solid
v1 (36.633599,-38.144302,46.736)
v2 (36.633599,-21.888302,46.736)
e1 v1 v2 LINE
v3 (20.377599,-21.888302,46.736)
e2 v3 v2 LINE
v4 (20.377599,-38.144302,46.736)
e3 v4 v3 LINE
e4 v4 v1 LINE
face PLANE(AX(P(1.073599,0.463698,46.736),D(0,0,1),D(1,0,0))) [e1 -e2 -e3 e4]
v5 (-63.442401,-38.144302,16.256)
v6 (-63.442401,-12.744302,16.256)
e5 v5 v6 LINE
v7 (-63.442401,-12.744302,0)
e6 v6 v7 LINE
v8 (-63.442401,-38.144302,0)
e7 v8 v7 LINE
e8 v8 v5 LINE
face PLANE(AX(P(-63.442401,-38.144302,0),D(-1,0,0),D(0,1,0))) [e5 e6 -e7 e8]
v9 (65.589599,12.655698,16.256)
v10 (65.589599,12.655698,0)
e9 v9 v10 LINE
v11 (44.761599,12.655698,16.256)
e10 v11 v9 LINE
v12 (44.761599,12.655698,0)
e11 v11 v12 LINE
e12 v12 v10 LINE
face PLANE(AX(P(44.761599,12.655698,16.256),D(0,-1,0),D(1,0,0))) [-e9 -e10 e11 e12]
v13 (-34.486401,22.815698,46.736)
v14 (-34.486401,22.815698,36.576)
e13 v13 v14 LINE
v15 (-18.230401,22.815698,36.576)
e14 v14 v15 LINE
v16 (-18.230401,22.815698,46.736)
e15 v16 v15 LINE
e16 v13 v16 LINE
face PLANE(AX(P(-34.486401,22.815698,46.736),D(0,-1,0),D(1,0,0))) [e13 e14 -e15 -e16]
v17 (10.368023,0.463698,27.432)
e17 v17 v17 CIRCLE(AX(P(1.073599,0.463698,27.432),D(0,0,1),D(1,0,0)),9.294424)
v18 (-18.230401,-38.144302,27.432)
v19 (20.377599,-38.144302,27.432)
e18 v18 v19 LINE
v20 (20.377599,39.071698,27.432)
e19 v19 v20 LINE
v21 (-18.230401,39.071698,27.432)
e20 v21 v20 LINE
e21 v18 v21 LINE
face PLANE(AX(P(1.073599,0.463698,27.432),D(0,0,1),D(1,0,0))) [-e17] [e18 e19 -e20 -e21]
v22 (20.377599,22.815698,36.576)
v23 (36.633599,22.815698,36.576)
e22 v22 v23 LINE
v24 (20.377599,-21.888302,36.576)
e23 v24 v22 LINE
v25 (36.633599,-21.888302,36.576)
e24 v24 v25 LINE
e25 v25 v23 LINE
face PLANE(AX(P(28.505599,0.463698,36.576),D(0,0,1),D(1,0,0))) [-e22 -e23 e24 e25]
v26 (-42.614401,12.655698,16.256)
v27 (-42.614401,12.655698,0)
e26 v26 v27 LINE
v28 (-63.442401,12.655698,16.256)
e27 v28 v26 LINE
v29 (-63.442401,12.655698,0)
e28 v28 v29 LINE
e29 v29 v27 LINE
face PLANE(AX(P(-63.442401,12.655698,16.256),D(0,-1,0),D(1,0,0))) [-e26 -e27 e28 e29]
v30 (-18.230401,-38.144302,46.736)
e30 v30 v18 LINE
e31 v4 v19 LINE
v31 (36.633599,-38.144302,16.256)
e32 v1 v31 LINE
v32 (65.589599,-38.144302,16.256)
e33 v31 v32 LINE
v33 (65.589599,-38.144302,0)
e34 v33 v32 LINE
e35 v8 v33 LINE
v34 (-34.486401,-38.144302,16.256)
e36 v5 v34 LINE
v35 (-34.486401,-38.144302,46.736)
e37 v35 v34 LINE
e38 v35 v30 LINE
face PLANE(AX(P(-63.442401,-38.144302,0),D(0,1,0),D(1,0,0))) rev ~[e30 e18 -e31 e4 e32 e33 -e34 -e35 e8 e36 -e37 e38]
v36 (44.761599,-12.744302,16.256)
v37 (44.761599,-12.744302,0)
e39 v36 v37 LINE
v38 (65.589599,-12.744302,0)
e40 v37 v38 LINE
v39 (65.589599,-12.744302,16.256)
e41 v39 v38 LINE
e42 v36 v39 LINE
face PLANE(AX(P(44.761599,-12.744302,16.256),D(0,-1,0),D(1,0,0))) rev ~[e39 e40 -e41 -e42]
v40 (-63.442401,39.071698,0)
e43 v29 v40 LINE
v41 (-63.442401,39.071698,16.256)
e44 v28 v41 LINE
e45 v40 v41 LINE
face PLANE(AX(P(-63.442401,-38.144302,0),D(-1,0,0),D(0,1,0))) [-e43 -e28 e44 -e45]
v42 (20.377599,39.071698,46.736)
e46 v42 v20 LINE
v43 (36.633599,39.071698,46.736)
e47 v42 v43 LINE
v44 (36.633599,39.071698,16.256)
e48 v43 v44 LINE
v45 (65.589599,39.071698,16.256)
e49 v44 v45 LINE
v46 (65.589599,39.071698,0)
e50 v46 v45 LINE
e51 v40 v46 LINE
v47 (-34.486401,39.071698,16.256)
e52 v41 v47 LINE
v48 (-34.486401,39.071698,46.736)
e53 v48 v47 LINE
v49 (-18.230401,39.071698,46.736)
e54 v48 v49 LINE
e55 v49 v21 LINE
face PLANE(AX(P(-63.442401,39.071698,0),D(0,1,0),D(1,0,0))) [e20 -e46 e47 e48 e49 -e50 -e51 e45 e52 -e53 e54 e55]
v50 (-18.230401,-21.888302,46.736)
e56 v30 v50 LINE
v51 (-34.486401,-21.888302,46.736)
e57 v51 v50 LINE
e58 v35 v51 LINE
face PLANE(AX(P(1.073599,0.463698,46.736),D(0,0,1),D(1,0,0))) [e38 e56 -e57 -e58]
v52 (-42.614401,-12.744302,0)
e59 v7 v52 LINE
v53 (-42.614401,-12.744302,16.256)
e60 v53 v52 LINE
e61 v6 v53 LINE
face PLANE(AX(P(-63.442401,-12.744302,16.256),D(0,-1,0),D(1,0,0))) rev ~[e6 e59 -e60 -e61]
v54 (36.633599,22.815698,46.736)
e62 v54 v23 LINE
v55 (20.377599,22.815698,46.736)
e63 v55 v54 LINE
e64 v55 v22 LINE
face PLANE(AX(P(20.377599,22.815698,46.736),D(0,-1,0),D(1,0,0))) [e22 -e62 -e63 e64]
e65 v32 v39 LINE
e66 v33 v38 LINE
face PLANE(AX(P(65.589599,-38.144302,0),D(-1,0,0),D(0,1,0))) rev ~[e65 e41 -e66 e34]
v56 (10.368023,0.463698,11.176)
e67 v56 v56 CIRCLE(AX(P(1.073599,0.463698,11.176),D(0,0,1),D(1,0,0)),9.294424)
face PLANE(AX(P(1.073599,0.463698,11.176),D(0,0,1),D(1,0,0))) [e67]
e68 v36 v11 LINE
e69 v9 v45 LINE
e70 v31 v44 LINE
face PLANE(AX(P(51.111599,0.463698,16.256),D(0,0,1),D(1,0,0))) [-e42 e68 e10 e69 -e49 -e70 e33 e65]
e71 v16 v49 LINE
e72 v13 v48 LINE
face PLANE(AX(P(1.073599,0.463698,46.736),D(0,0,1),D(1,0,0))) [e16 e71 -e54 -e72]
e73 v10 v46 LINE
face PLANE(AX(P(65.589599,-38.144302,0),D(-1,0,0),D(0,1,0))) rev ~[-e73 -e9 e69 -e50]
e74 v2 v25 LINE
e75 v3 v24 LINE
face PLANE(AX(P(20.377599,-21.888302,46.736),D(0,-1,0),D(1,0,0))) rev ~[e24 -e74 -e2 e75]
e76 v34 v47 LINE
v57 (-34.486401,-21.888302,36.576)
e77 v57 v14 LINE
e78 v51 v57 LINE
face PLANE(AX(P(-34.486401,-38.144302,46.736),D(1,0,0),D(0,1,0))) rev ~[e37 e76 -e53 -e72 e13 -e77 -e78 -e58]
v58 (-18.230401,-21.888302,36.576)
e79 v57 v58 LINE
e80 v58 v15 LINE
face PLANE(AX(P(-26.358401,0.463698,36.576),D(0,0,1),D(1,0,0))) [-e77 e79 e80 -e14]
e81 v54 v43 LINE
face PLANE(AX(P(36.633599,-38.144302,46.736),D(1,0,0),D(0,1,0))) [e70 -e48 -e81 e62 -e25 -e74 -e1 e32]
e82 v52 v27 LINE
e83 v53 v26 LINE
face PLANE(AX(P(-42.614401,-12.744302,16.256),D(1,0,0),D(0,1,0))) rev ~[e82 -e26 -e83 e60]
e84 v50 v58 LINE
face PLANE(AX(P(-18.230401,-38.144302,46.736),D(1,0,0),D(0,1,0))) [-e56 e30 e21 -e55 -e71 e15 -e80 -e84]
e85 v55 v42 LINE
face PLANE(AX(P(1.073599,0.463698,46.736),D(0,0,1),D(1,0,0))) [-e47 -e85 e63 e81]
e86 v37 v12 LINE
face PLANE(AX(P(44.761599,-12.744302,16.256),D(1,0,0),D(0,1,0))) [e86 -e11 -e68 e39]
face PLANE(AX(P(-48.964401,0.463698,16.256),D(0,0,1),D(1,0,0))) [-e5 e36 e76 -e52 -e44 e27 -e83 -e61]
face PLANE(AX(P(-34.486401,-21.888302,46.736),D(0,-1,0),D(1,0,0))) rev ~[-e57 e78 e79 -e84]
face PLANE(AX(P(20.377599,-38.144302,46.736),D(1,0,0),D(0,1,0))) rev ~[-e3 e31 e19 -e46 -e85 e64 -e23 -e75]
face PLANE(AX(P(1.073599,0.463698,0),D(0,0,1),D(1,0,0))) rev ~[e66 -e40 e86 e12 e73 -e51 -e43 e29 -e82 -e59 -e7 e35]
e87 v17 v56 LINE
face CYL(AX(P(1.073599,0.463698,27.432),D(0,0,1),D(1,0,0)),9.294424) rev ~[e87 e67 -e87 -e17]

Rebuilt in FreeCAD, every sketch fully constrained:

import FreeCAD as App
import Part
import Sketcher
Q = App.Units.Quantity


def add_polygon(sketch, points):
    """Adds a closed chain of lines whose ends are joined by coincident constraints."""
    first, n = sketch.GeometryCount, len(points)
    for a, b in zip(points, points[1:] + points[:1]):
        sketch.addGeometry(Part.LineSegment(App.Vector(*a, 0), App.Vector(*b, 0)), False)
    for i in range(n):
        sketch.addConstraint(Sketcher.Constraint("Coincident", first + i, 2, first + (i + 1) % n, 1))

doc = App.newDocument("Part")
body = doc.addObject("PartDesign::Body", "Body")

# Sketch on XY plane
sketch1 = body.newObject("Sketcher::SketchObject", "Sketch")
sketch1.AttachmentSupport = (doc.getObject("XY_Plane"), [""])
sketch1.MapMode = "FlatFace"
add_polygon(sketch1, [(-63, 39), (-63, -38), (66, -38), (66, 39)])  # lines 0-3
sketch1.addConstraint([
    Sketcher.Constraint("Vertical", 0),
    Sketcher.Constraint("Horizontal", 1),
    Sketcher.Constraint("Vertical", 2),
    Sketcher.Constraint("Horizontal", 3),
    Sketcher.Constraint("DistanceX", 1, 1, 1, 2, Q("5.08 in")),
    Sketcher.Constraint("DistanceY", 0, 2, 0, 1, Q("3.04 in")),
    Sketcher.Constraint("DistanceX", 0, 2, -1, 1, 63.442401),
    Sketcher.Constraint("DistanceY", 0, 2, -1, 1, 38.144302),
])
pad1 = body.newObject("PartDesign::Pad", "Pad")
pad1.Profile = sketch1
pad1.Length = Q("1.84 in")

# Sketch on XY plane
sketch2 = body.newObject("Sketcher::SketchObject", "Sketch001")
sketch2.AttachmentSupport = (doc.getObject("XY_Plane"), [""])
sketch2.MapMode = "FlatFace"
sketch2.AttachmentOffset = App.Placement(App.Vector(0, 0, 1.84 * 25.4), App.Rotation())
add_polygon(sketch2, [(-63, 39), (-63, -38), (-34, -38), (-34, 39)])  # lines 0-3
sketch2.addConstraint([
    Sketcher.Constraint("Vertical", 0),
    Sketcher.Constraint("Horizontal", 1),
    Sketcher.Constraint("Vertical", 2),
    Sketcher.Constraint("Horizontal", 3),
    Sketcher.Constraint("DistanceX", 1, 1, 1, 2, Q("1.14 in")),
    Sketcher.Constraint("DistanceY", 0, 2, 0, 1, Q("3.04 in")),
    Sketcher.Constraint("DistanceX", 0, 2, -1, 1, 63.442401),
    Sketcher.Constraint("DistanceY", 0, 2, -1, 1, 38.144302),
])
pocket1 = body.newObject("PartDesign::Pocket", "Pocket")
pocket1.Profile = sketch2
pocket1.Length = Q("1.2 in")

# Sketch on XY plane
sketch3 = body.newObject("Sketcher::SketchObject", "Sketch002")
sketch3.AttachmentSupport = (doc.getObject("XY_Plane"), [""])
sketch3.MapMode = "FlatFace"
sketch3.AttachmentOffset = App.Placement(App.Vector(0, 0, 1.84 * 25.4), App.Rotation())
add_polygon(sketch3, [(37, 39), (37, -38), (66, -38), (66, 39)])  # lines 0-3
sketch3.addConstraint([
    Sketcher.Constraint("Vertical", 0),
    Sketcher.Constraint("Horizontal", 1),
    Sketcher.Constraint("Vertical", 2),
    Sketcher.Constraint("Horizontal", 3),
    Sketcher.Constraint("DistanceX", 1, 1, 1, 2, Q("1.14 in")),
    Sketcher.Constraint("DistanceY", 0, 2, 0, 1, Q("3.04 in")),
    Sketcher.Constraint("DistanceX", -1, 1, 0, 2, 36.633599),
    Sketcher.Constraint("DistanceY", 0, 2, -1, 1, 38.144302),
])
pocket2 = body.newObject("PartDesign::Pocket", "Pocket001")
pocket2.Profile = sketch3
pocket2.Length = Q("1.2 in")

# Sketch on XY plane
sketch4 = body.newObject("Sketcher::SketchObject", "Sketch003")
sketch4.AttachmentSupport = (doc.getObject("XY_Plane"), [""])
sketch4.MapMode = "FlatFace"
sketch4.AttachmentOffset = App.Placement(App.Vector(0, 0, 1.84 * 25.4), App.Rotation())
add_polygon(sketch4, [(-18, 39), (-18, -38), (20, -38), (20, 39)])  # lines 0-3
sketch4.addConstraint([
    Sketcher.Constraint("Vertical", 0),
    Sketcher.Constraint("Horizontal", 1),
    Sketcher.Constraint("Vertical", 2),
    Sketcher.Constraint("Horizontal", 3),
    Sketcher.Constraint("DistanceX", 1, 1, 1, 2, Q("1.52 in")),
    Sketcher.Constraint("DistanceY", 0, 2, 0, 1, Q("3.04 in")),
    Sketcher.Constraint("DistanceX", 0, 2, -1, 1, 18.230401),
    Sketcher.Constraint("DistanceY", 0, 2, -1, 1, 38.144302),
])
pocket3 = body.newObject("PartDesign::Pocket", "Pocket002")
pocket3.Profile = sketch4
pocket3.Length = Q("0.76 in")

# Sketch on XY plane
sketch5 = body.newObject("Sketcher::SketchObject", "Sketch004")
sketch5.AttachmentSupport = (doc.getObject("XY_Plane"), [""])
sketch5.MapMode = "FlatFace"
sketch5.AttachmentOffset = App.Placement(App.Vector(0, 0, 1.84 * 25.4), App.Rotation())
add_polygon(sketch5, [(-34, 23), (-34, -22), (-18, -22), (-18, 23)])  # lines 0-3
sketch5.addConstraint([
    Sketcher.Constraint("Vertical", 0),
    Sketcher.Constraint("Horizontal", 1),
    Sketcher.Constraint("Vertical", 2),
    Sketcher.Constraint("Horizontal", 3),
    Sketcher.Constraint("DistanceX", 1, 1, 1, 2, Q("0.64 in")),
    Sketcher.Constraint("DistanceY", 0, 2, 0, 1, Q("1.76 in")),
    Sketcher.Constraint("DistanceX", 0, 2, -1, 1, 34.486401),
    Sketcher.Constraint("DistanceY", 0, 2, -1, 1, 21.888302),
])
pocket4 = body.newObject("PartDesign::Pocket", "Pocket003")
pocket4.Profile = sketch5
pocket4.Length = Q("0.4 in")

# Sketch on XY plane
sketch6 = body.newObject("Sketcher::SketchObject", "Sketch005")
sketch6.AttachmentSupport = (doc.getObject("XY_Plane"), [""])
sketch6.MapMode = "FlatFace"
sketch6.AttachmentOffset = App.Placement(App.Vector(0, 0, 1.84 * 25.4), App.Rotation())
add_polygon(sketch6, [(20, 23), (20, -22), (37, -22), (37, 23)])  # lines 0-3
sketch6.addConstraint([
    Sketcher.Constraint("Vertical", 0),
    Sketcher.Constraint("Horizontal", 1),
    Sketcher.Constraint("Vertical", 2),
    Sketcher.Constraint("Horizontal", 3),
    Sketcher.Constraint("DistanceX", 1, 1, 1, 2, Q("0.64 in")),
    Sketcher.Constraint("DistanceY", 0, 2, 0, 1, Q("1.76 in")),
    Sketcher.Constraint("DistanceX", -1, 1, 0, 2, 20.377599),
    Sketcher.Constraint("DistanceY", 0, 2, -1, 1, 21.888302),
])
pocket5 = body.newObject("PartDesign::Pocket", "Pocket004")
pocket5.Profile = sketch6
pocket5.Length = Q("0.4 in")

# Sketch on XY plane
sketch7 = body.newObject("Sketcher::SketchObject", "Sketch006")
sketch7.AttachmentSupport = (doc.getObject("XY_Plane"), [""])
sketch7.MapMode = "FlatFace"
sketch7.AttachmentOffset = App.Placement(App.Vector(0, 0, 0.64 * 25.4), App.Rotation())
add_polygon(sketch7, [(45, 13), (45, -13), (66, -13), (66, 13)])  # lines 0-3
sketch7.addConstraint([
    Sketcher.Constraint("Vertical", 0),
    Sketcher.Constraint("Horizontal", 1),
    Sketcher.Constraint("Vertical", 2),
    Sketcher.Constraint("Horizontal", 3),
    Sketcher.Constraint("DistanceY", 0, 2, 0, 1, Q("1 in")),
    Sketcher.Constraint("DistanceX", 1, 1, 1, 2, Q("0.82 in")),
    Sketcher.Constraint("DistanceX", -1, 1, 0, 2, 44.761599),
    Sketcher.Constraint("DistanceY", 0, 2, -1, 1, 12.744302),
])
pocket6 = body.newObject("PartDesign::Pocket", "Pocket005")
pocket6.Profile = sketch7
pocket6.Length = Q("0.64 in")

# Sketch on XY plane
sketch8 = body.newObject("Sketcher::SketchObject", "Sketch007")
sketch8.AttachmentSupport = (doc.getObject("XY_Plane"), [""])
sketch8.MapMode = "FlatFace"
sketch8.AttachmentOffset = App.Placement(App.Vector(0, 0, 0.64 * 25.4), App.Rotation())
add_polygon(sketch8, [(-63, 13), (-63, -13), (-43, -13), (-43, 13)])  # lines 0-3
sketch8.addConstraint([
    Sketcher.Constraint("Vertical", 0),
    Sketcher.Constraint("Horizontal", 1),
    Sketcher.Constraint("Vertical", 2),
    Sketcher.Constraint("Horizontal", 3),
    Sketcher.Constraint("DistanceY", 0, 2, 0, 1, Q("1 in")),
    Sketcher.Constraint("DistanceX", 1, 1, 1, 2, Q("0.82 in")),
    Sketcher.Constraint("DistanceX", 0, 2, -1, 1, 63.442401),
    Sketcher.Constraint("DistanceY", 0, 2, -1, 1, 12.744302),
])
pocket7 = body.newObject("PartDesign::Pocket", "Pocket006")
pocket7.Profile = sketch8
pocket7.Length = Q("0.64 in")

# Sketch on XY plane
sketch9 = body.newObject("Sketcher::SketchObject", "Sketch008")
sketch9.AttachmentSupport = (doc.getObject("XY_Plane"), [""])
sketch9.MapMode = "FlatFace"
sketch9.AttachmentOffset = App.Placement(App.Vector(0, 0, 1.08 * 25.4), App.Rotation())
sketch9.addGeometry(Part.Circle(App.Vector(1, 0, 0), App.Vector(0, 0, 1), 9), False)
sketch9.addConstraint([
    Sketcher.Constraint("Diameter", 0, 18.588848),
    Sketcher.Constraint("DistanceX", -1, 1, 0, 3, 1.073599),
    Sketcher.Constraint("DistanceY", -1, 1, 0, 3, 0.463698),
])
pocket8 = body.newObject("PartDesign::Pocket", "Pocket007")
pocket8.Profile = sketch9
pocket8.Length = Q("0.64 in")

doc.recompute()
